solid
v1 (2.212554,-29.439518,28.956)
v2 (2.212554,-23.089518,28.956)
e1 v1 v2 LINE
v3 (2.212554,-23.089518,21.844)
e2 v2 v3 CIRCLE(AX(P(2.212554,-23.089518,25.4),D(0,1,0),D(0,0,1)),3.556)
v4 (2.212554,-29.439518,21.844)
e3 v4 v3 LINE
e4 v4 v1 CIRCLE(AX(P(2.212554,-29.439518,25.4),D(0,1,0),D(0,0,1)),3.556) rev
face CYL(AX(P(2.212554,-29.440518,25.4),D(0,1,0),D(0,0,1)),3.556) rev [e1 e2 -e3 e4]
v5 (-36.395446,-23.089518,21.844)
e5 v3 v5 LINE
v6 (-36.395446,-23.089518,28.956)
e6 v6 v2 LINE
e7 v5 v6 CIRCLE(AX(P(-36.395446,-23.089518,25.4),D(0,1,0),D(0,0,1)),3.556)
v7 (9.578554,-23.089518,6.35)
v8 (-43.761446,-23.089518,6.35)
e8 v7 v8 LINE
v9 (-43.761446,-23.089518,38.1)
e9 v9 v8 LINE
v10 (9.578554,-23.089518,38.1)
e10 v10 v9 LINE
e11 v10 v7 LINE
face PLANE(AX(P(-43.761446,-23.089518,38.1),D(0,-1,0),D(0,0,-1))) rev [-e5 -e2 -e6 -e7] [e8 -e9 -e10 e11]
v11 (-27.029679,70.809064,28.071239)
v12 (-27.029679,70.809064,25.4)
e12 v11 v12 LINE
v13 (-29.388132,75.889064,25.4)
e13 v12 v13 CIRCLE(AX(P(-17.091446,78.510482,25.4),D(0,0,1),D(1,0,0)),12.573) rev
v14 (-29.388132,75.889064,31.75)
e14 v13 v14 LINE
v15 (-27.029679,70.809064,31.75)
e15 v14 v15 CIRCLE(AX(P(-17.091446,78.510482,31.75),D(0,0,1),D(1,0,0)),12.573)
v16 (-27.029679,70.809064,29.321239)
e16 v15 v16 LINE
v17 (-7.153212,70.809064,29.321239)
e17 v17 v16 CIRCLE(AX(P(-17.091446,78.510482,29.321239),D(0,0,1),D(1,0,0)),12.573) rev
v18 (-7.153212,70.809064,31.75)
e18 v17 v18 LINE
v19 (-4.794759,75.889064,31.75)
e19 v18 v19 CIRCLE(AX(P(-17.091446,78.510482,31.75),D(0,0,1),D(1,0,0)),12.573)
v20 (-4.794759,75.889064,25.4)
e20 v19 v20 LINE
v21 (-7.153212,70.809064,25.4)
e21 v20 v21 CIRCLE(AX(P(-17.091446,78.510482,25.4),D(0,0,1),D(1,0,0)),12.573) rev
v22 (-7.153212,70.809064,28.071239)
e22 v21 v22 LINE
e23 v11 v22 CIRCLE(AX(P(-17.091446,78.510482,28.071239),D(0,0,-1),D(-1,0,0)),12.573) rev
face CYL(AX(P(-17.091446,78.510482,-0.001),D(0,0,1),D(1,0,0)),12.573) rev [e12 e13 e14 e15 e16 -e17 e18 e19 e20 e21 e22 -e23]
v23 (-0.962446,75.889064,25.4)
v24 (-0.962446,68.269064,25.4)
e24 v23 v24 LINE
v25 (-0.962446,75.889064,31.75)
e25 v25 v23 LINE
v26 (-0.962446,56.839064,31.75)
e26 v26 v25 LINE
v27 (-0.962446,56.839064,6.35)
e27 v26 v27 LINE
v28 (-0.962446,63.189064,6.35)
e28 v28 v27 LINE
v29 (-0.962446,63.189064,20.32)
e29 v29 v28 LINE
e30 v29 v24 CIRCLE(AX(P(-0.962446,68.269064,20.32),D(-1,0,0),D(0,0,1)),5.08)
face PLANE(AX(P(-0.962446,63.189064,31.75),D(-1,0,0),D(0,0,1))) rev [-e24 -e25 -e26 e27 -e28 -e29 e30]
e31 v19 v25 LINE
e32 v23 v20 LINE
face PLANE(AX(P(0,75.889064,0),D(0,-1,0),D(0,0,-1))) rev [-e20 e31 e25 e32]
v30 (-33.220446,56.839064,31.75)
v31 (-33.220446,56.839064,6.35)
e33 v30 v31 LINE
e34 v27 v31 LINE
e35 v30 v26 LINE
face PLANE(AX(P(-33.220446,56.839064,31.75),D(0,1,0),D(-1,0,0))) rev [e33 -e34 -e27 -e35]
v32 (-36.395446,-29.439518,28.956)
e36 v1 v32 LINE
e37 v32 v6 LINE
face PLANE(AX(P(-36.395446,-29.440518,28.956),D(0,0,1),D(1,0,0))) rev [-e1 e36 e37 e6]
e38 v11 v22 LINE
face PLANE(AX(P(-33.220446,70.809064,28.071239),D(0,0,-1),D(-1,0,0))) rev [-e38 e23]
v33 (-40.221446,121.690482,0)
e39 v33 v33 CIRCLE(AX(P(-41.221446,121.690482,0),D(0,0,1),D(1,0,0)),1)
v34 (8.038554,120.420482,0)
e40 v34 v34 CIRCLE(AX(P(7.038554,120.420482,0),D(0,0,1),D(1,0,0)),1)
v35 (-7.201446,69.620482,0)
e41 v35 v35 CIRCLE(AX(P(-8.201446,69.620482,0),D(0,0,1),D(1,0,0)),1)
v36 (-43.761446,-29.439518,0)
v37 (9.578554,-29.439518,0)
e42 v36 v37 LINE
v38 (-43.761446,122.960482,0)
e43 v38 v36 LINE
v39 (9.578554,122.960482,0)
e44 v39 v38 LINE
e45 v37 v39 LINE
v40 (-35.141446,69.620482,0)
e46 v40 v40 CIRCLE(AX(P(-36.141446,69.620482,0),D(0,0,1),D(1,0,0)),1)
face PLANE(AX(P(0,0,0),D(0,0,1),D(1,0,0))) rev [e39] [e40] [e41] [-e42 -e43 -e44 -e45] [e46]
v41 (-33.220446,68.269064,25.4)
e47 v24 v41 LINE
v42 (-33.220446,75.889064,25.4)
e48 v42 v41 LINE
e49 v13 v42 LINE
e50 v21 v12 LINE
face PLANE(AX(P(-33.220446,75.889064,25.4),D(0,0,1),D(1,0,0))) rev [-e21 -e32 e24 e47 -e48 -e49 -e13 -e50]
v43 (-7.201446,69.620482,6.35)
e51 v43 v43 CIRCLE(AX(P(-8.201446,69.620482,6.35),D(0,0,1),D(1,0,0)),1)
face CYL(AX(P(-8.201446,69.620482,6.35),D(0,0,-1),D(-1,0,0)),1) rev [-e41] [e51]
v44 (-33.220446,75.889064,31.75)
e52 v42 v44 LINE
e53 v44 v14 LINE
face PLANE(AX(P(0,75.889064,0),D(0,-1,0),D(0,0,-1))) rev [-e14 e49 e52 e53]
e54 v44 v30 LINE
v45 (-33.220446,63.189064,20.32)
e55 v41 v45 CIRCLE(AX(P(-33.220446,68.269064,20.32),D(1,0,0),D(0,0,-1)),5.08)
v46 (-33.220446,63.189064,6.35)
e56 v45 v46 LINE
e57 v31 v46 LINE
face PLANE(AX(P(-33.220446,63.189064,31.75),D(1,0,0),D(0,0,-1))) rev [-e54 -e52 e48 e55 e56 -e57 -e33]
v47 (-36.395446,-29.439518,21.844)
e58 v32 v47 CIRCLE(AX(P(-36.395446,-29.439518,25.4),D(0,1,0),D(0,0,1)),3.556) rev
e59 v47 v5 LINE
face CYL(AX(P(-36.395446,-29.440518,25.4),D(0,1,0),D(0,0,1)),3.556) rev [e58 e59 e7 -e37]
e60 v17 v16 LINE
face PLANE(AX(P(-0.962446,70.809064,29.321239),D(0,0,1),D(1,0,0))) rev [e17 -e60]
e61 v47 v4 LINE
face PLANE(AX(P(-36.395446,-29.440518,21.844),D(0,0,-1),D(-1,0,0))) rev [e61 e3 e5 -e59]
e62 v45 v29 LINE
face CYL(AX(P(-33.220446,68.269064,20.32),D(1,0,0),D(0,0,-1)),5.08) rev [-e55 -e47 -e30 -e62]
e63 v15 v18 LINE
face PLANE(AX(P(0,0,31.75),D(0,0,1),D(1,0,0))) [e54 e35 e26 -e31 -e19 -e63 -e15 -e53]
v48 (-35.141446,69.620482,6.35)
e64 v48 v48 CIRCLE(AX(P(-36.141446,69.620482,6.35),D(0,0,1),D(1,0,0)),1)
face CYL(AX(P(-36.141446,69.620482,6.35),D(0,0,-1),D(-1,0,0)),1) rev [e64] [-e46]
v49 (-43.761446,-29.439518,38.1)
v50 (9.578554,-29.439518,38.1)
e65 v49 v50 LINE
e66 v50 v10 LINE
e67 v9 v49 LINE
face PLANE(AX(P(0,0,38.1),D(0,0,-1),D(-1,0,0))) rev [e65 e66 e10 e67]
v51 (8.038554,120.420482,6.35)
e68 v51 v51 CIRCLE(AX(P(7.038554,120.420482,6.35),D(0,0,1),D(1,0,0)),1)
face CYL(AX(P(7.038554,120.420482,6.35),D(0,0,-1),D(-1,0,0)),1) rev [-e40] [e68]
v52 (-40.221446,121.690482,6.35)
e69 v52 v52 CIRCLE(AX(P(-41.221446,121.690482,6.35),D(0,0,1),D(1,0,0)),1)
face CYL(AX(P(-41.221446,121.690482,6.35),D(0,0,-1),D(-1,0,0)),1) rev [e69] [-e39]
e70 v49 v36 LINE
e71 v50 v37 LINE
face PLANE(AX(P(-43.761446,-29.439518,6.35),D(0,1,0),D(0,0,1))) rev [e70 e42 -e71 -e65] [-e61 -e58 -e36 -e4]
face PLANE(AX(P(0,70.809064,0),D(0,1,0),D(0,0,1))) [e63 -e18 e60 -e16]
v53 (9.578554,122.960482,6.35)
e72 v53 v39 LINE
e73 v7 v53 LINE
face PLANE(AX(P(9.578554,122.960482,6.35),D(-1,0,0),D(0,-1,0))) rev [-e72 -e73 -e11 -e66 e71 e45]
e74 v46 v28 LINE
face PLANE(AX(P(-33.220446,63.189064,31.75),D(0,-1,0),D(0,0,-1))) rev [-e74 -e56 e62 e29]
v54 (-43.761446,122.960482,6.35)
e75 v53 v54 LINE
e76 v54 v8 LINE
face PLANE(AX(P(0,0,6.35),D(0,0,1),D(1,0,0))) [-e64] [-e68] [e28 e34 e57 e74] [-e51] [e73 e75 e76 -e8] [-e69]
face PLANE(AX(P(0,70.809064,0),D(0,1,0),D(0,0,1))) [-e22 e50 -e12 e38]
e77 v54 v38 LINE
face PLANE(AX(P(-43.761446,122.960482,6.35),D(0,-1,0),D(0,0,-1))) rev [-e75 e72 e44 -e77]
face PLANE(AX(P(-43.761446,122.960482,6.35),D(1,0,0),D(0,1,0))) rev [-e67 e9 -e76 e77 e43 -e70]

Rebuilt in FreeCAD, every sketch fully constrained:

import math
import FreeCAD as App
import Part
import Sketcher

V = App.Vector
Q = App.Units.Quantity


def edges_at(feature, points):
    """Names of the edges that pass closest to the given points."""
    edges = feature.Shape.Edges
    near = lambda p: min(range(len(edges)), key=lambda i: edges[i].distToShape(Part.Vertex(*p))[0])
    return sorted({f"Edge{near(p) + 1}" for p in points})

doc = App.newDocument("Part")
body = doc.addObject("PartDesign::Body", "Body")

# Sketch on XY plane
sketch1 = doc.addObject("Sketcher::SketchObject", "Sketch")
body.addObject(sketch1)
sketch1.AttachmentSupport = (doc.XY_Plane, [""])
sketch1.MapMode = "FlatFace"
sketch1.addGeometry(Part.LineSegment(V(-43.8, 123, 0), V(-43.8, -29.4, 0)), False)
sketch1.addGeometry(Part.LineSegment(V(-43.8, -29.4, 0), V(9.6, -29.4, 0)), False)
sketch1.addGeometry(Part.LineSegment(V(9.6, -29.4, 0), V(9.6, 123, 0)), False)
sketch1.addGeometry(Part.LineSegment(V(9.6, 123, 0), V(-43.8, 123, 0)), False)
sketch1.addGeometry(Part.Circle(V(-36.1, 69.6, 0), V(0, 0, 1), 1), False)
sketch1.addGeometry(Part.Circle(V(-8.2, 69.6, 0), V(0, 0, 1), 1), False)
sketch1.addGeometry(Part.Circle(V(-41.2, 121.7, 0), V(0, 0, 1), 1), False)
sketch1.addGeometry(Part.Circle(V(7, 120.4, 0), V(0, 0, 1), 1), False)
sketch1.addConstraint(Sketcher.Constraint("Coincident", 0, 2, 1, 1))
sketch1.addConstraint(Sketcher.Constraint("Coincident", 1, 2, 2, 1))
sketch1.addConstraint(Sketcher.Constraint("Coincident", 2, 2, 3, 1))
sketch1.addConstraint(Sketcher.Constraint("Coincident", 3, 2, 0, 1))
sketch1.addConstraint(Sketcher.Constraint("Vertical", 0))
sketch1.addConstraint(Sketcher.Constraint("Horizontal", 1))
sketch1.addConstraint(Sketcher.Constraint("Vertical", 2))
sketch1.addConstraint(Sketcher.Constraint("Horizontal", 3))
sketch1.addConstraint(Sketcher.Constraint("Equal", 4, 5))
sketch1.addConstraint(Sketcher.Constraint("Equal", 5, 6))
sketch1.addConstraint(Sketcher.Constraint("Equal", 6, 7))
sketch1.addConstraint(Sketcher.Constraint("Horizontal", 4, 3, 5, 3))
sketch1.addConstraint(Sketcher.Constraint("DistanceY", 0, 2, 0, 1, Q("6 in")))
sketch1.addConstraint(Sketcher.Constraint("DistanceX", 1, 1, 1, 2, Q("2.1 in")))
sketch1.addConstraint(Sketcher.Constraint("DistanceY", 5, 3, 7, 3, Q("2 in")))
sketch1.addConstraint(Sketcher.Constraint("DistanceX", 0, 2, 7, 3, Q("2 in")))
sketch1.addConstraint(Sketcher.Constraint("DistanceX", 6, 3, 1, 2, Q("2 in")))
sketch1.addConstraint(Sketcher.Constraint("DistanceX", 4, 3, 5, 3, Q("1.1 in")))
sketch1.addConstraint(Sketcher.Constraint("DistanceX", 6, 3, 4, 3, Q("0.2 in")))
sketch1.addConstraint(Sketcher.Constraint("DistanceY", 0, 2, 4, 3, Q("3.9 in")))
sketch1.addConstraint(Sketcher.Constraint("Diameter", 4, 2.0))
sketch1.addConstraint(Sketcher.Constraint("DistanceY", 4, 3, 6, 3, Q("2.05 in")))
sketch1.addConstraint(Sketcher.Constraint("DistanceY", -1, 1, 4, 3, 69.620482))
sketch1.addConstraint(Sketcher.Constraint("DistanceX", 4, 3, -1, 1, 36.141446))
pad1 = doc.addObject("PartDesign::Pad", "Pad")
body.addObject(pad1)
pad1.Profile = sketch1
pad1.Length = Q("0.25 in")

# Sketch on XY plane
sketch2 = doc.addObject("Sketcher::SketchObject", "Sketch001")
body.addObject(sketch2)
sketch2.AttachmentSupport = (doc.XY_Plane, [""])
sketch2.MapMode = "FlatFace"
sketch2.addGeometry(Part.LineSegment(V(-33, 63, 0), V(-33, 57, 0)), False)
sketch2.addGeometry(Part.LineSegment(V(-33, 57, 0), V(-1, 57, 0)), False)
sketch2.addGeometry(Part.LineSegment(V(-1, 57, 0), V(-1, 63, 0)), False)
sketch2.addGeometry(Part.LineSegment(V(-1, 63, 0), V(-33, 63, 0)), False)
sketch2.addConstraint(Sketcher.Constraint("Coincident", 0, 2, 1, 1))
sketch2.addConstraint(Sketcher.Constraint("Coincident", 1, 2, 2, 1))
sketch2.addConstraint(Sketcher.Constraint("Coincident", 2, 2, 3, 1))
sketch2.addConstraint(Sketcher.Constraint("Coincident", 3, 2, 0, 1))
sketch2.addConstraint(Sketcher.Constraint("Vertical", 0))
sketch2.addConstraint(Sketcher.Constraint("Horizontal", 1))
sketch2.addConstraint(Sketcher.Constraint("Vertical", 2))
sketch2.addConstraint(Sketcher.Constraint("Horizontal", 3))
sketch2.addConstraint(Sketcher.Constraint("DistanceX", 1, 1, 1, 2, Q("1.27 in")))
sketch2.addConstraint(Sketcher.Constraint("DistanceY", 0, 2, 0, 1, Q("0.25 in")))
sketch2.addConstraint(Sketcher.Constraint("DistanceX", 0, 2, -1, 1, 33.220446))
sketch2.addConstraint(Sketcher.Constraint("DistanceY", -1, 1, 0, 2, 56.839064))
pad2 = doc.addObject("PartDesign::Pad", "Pad001")
body.addObject(pad2)
pad2.Profile = sketch2
pad2.Length = Q("1.25 in")

# Sketch on XZ plane
sketch3 = doc.addObject("Sketcher::SketchObject", "Sketch002")
body.addObject(sketch3)
sketch3.AttachmentSupport = (doc.XZ_Plane, [""])
sketch3.MapMode = "FlatFace"
sketch3.AttachmentOffset = App.Placement(V(0, 0, -63.189064), App.Rotation())
sketch3.addGeometry(Part.LineSegment(V(-33, 25, 0), V(-33, 32, 0)), False)
sketch3.addGeometry(Part.LineSegment(V(-33, 32, 0), V(-1, 32, 0)), False)
sketch3.addGeometry(Part.LineSegment(V(-1, 32, 0), V(-1, 25, 0)), False)
sketch3.addGeometry(Part.LineSegment(V(-1, 25, 0), V(-33, 25, 0)), False)
sketch3.addConstraint(Sketcher.Constraint("Coincident", 0, 2, 1, 1))
sketch3.addConstraint(Sketcher.Constraint("Coincident", 1, 2, 2, 1))
sketch3.addConstraint(Sketcher.Constraint("Coincident", 2, 2, 3, 1))
sketch3.addConstraint(Sketcher.Constraint("Coincident", 3, 2, 0, 1))
sketch3.addConstraint(Sketcher.Constraint("Vertical", 0))
sketch3.addConstraint(Sketcher.Constraint("Horizontal", 1))
sketch3.addConstraint(Sketcher.Constraint("Vertical", 2))
sketch3.addConstraint(Sketcher.Constraint("Horizontal", 3))
sketch3.addConstraint(Sketcher.Constraint("DistanceY", -1, 1, 2, 2, Q("1 in")))
sketch3.addConstraint(Sketcher.Constraint("DistanceX", 1, 1, 1, 2, Q("1.27 in")))
sketch3.addConstraint(Sketcher.Constraint("DistanceY", 0, 1, 0, 2, Q("0.25 in")))
sketch3.addConstraint(Sketcher.Constraint("DistanceX", 0, 2, -1, 1, 33.220446))
pad3 = doc.addObject("PartDesign::Pad", "Pad002")
body.addObject(pad3)
pad3.Profile = sketch3
pad3.Length = Q("0.5 in")
pad3.Reversed = True

# Sketch on XY plane
sketch4 = doc.addObject("Sketcher::SketchObject", "Sketch003")
body.addObject(sketch4)
sketch4.AttachmentSupport = (doc.XY_Plane, [""])
sketch4.MapMode = "FlatFace"
sketch4.AttachmentOffset = App.Placement(V(0, 0, 1.25 * 25.4), App.Rotation())
sketch4.addGeometry(Part.Circle(V(-17, 79, 0), V(0, 0, 1), 13), False)
sketch4.addConstraint(Sketcher.Constraint("Diameter", 0, Q("0.99 in")))
sketch4.addConstraint(Sketcher.Constraint("DistanceY", -1, 1, 0, 3, 78.510482))
sketch4.addConstraint(Sketcher.Constraint("DistanceX", 0, 3, -1, 1, 17.091446))
pocket1 = doc.addObject("PartDesign::Pocket", "Pocket")
body.addObject(pocket1)
pocket1.Profile = sketch4
pocket1.Type = "UpToFirst"

# Sketch on XZ plane
sketch5 = doc.addObject("Sketcher::SketchObject", "Sketch004")
body.addObject(sketch5)
sketch5.AttachmentSupport = (doc.XZ_Plane, [""])
sketch5.MapMode = "FlatFace"
sketch5.AttachmentOffset = App.Placement(V(0, 0, -63.189064), App.Rotation())
sketch5.addGeometry(Part.LineSegment(V(-33.2, 25.4, 0), V(-33.2, 28.1, 0)), False)
sketch5.addGeometry(Part.LineSegment(V(-33.2, 28.1, 0), V(-1, 28.1, 0)), False)
sketch5.addGeometry(Part.LineSegment(V(-1, 28.1, 0), V(-1, 25.4, 0)), False)
sketch5.addGeometry(Part.LineSegment(V(-1, 25.4, 0), V(-33.2, 25.4, 0)), False)
sketch5.addGeometry(Part.LineSegment(V(-33.2, 29.3, 0), V(-33.2, 31.8, 0)), False)
sketch5.addGeometry(Part.LineSegment(V(-33.2, 31.8, 0), V(-1, 31.8, 0)), False)
sketch5.addGeometry(Part.LineSegment(V(-1, 31.8, 0), V(-1, 29.3, 0)), False)
sketch5.addGeometry(Part.LineSegment(V(-1, 29.3, 0), V(-33.2, 29.3, 0)), False)
sketch5.addConstraint(Sketcher.Constraint("Coincident", 0, 2, 1, 1))
sketch5.addConstraint(Sketcher.Constraint("Coincident", 1, 2, 2, 1))
sketch5.addConstraint(Sketcher.Constraint("Coincident", 2, 2, 3, 1))
sketch5.addConstraint(Sketcher.Constraint("Coincident", 3, 2, 0, 1))
sketch5.addConstraint(Sketcher.Constraint("Coincident", 4, 2, 5, 1))
sketch5.addConstraint(Sketcher.Constraint("Coincident", 5, 2, 6, 1))
sketch5.addConstraint(Sketcher.Constraint("Coincident", 6, 2, 7, 1))
sketch5.addConstraint(Sketcher.Constraint("Coincident", 7, 2, 4, 1))
sketch5.addConstraint(Sketcher.Constraint("Vertical", 0))
sketch5.addConstraint(Sketcher.Constraint("Horizontal", 1))
sketch5.addConstraint(Sketcher.Constraint("Vertical", 2))
sketch5.addConstraint(Sketcher.Constraint("Horizontal", 3))
sketch5.addConstraint(Sketcher.Constraint("Vertical", 4))
sketch5.addConstraint(Sketcher.Constraint("Horizontal", 5))
sketch5.addConstraint(Sketcher.Constraint("Vertical", 6))
sketch5.addConstraint(Sketcher.Constraint("Horizontal", 7))
sketch5.addConstraint(Sketcher.Constraint("Vertical", 3, 2, 4, 2))
sketch5.addConstraint(Sketcher.Constraint("Vertical", 2, 2, 5, 2))
sketch5.addConstraint(Sketcher.Constraint("DistanceY", -1, 1, 2, 2, Q("1 in")))
sketch5.addConstraint(Sketcher.Constraint("DistanceX", 1, 1, 1, 2, Q("1.27 in")))
sketch5.addConstraint(Sketcher.Constraint("DistanceY", -1, 1, 4, 2, Q("1.25 in")))
sketch5.addConstraint(Sketcher.Constraint("DistanceY", 0, 1, 0, 2, 2.671239))
sketch5.addConstraint(Sketcher.Constraint("DistanceY", 4, 1, 4, 2, 2.428761))
sketch5.addConstraint(Sketcher.Constraint("DistanceX", 0, 2, -1, 1, 33.220446))
pad4 = doc.addObject("PartDesign::Pad", "Pad003")
body.addObject(pad4)
pad4.Profile = sketch5
pad4.Length = Q("0.3 in")
pad4.Reversed = True
doc.recompute()

fillet = doc.addObject("PartDesign::Fillet", "Fillet")
body.addObject(fillet)
fillet.Base = (pad4, edges_at(pad4, [(-17.091, 63.189, 25.4)]))
fillet.Radius = Q("0.2 in")

# Sketch on XY plane
sketch6 = doc.addObject("Sketcher::SketchObject", "Sketch005")
body.addObject(sketch6)
sketch6.AttachmentSupport = (doc.XY_Plane, [""])
sketch6.MapMode = "FlatFace"
sketch6.AttachmentOffset = App.Placement(V(0, 0, 0.25 * 25.4), App.Rotation())
sketch6.addGeometry(Part.LineSegment(V(-44, -23, 0), V(-44, -29, 0)), False)
sketch6.addGeometry(Part.LineSegment(V(-44, -29, 0), V(10, -29, 0)), False)
sketch6.addGeometry(Part.LineSegment(V(10, -29, 0), V(10, -23, 0)), False)
sketch6.addGeometry(Part.LineSegment(V(10, -23, 0), V(-44, -23, 0)), False)
sketch6.addConstraint(Sketcher.Constraint("Coincident", 0, 2, 1, 1))
sketch6.addConstraint(Sketcher.Constraint("Coincident", 1, 2, 2, 1))
sketch6.addConstraint(Sketcher.Constraint("Coincident", 2, 2, 3, 1))
sketch6.addConstraint(Sketcher.Constraint("Coincident", 3, 2, 0, 1))
sketch6.addConstraint(Sketcher.Constraint("Vertical", 0))
sketch6.addConstraint(Sketcher.Constraint("Horizontal", 1))
sketch6.addConstraint(Sketcher.Constraint("Vertical", 2))
sketch6.addConstraint(Sketcher.Constraint("Horizontal", 3))
sketch6.addConstraint(Sketcher.Constraint("DistanceX", 1, 1, 1, 2, Q("2.1 in")))
sketch6.addConstraint(Sketcher.Constraint("DistanceY", 0, 2, 0, 1, Q("0.25 in")))
sketch6.addConstraint(Sketcher.Constraint("DistanceY", 0, 2, -1, 1, 29.439518))
sketch6.addConstraint(Sketcher.Constraint("DistanceX", 0, 2, -1, 1, 43.761446))
pad5 = doc.addObject("PartDesign::Pad", "Pad004")
body.addObject(pad5)
pad5.Profile = sketch6
pad5.Length = Q("1.25 in")

# Sketch on XZ plane
sketch7 = doc.addObject("Sketcher::SketchObject", "Sketch006")
body.addObject(sketch7)
sketch7.AttachmentSupport = (doc.XZ_Plane, [""])
sketch7.MapMode = "FlatFace"
sketch7.AttachmentOffset = App.Placement(V(0, 0, 23.089518), App.Rotation())
sketch7.addGeometry(Part.LineSegment(V(2.2, 21.8, 0), V(-36.4, 21.8, 0)), False)
sketch7.addGeometry(Part.ArcOfCircle(Part.Circle(V(-36.4, 25.4, 0), V(0, 0, 1), 3.6), math.radians(90), math.radians(270)), False)
sketch7.addGeometry(Part.LineSegment(V(-36.4, 29, 0), V(2.2, 29, 0)), False)
sketch7.addGeometry(Part.ArcOfCircle(Part.Circle(V(2.2, 25.4, 0), V(0, 0, 1), 3.6), math.radians(-90), math.radians(90)), False)
sketch7.addConstraint(Sketcher.Constraint("Tangent", 0, 2, 1, 2))
sketch7.addConstraint(Sketcher.Constraint("Tangent", 1, 1, 2, 1))
sketch7.addConstraint(Sketcher.Constraint("Tangent", 2, 2, 3, 2))
sketch7.addConstraint(Sketcher.Constraint("Tangent", 3, 1, 0, 1))
sketch7.addConstraint(Sketcher.Constraint("Horizontal", 0))
sketch7.addConstraint(Sketcher.Constraint("Horizontal", 2))
sketch7.addConstraint(Sketcher.Constraint("Radius", 1, Q("0.14 in")))
sketch7.addConstraint(Sketcher.Constraint("DistanceY", -1, 1, 1, 3, Q("1 in")))
sketch7.addConstraint(Sketcher.Constraint("DistanceX", 0, 2, 0, 1, Q("1.52 in")))
sketch7.addConstraint(Sketcher.Constraint("DistanceX", 1, 3, -1, 1, 36.395446))
pocket2 = doc.addObject("PartDesign::Pocket", "Pocket001")
body.addObject(pocket2)
pocket2.Profile = sketch7
pocket2.Type = "UpToFirst"
pocket2.Reversed = True

doc.recompute()
